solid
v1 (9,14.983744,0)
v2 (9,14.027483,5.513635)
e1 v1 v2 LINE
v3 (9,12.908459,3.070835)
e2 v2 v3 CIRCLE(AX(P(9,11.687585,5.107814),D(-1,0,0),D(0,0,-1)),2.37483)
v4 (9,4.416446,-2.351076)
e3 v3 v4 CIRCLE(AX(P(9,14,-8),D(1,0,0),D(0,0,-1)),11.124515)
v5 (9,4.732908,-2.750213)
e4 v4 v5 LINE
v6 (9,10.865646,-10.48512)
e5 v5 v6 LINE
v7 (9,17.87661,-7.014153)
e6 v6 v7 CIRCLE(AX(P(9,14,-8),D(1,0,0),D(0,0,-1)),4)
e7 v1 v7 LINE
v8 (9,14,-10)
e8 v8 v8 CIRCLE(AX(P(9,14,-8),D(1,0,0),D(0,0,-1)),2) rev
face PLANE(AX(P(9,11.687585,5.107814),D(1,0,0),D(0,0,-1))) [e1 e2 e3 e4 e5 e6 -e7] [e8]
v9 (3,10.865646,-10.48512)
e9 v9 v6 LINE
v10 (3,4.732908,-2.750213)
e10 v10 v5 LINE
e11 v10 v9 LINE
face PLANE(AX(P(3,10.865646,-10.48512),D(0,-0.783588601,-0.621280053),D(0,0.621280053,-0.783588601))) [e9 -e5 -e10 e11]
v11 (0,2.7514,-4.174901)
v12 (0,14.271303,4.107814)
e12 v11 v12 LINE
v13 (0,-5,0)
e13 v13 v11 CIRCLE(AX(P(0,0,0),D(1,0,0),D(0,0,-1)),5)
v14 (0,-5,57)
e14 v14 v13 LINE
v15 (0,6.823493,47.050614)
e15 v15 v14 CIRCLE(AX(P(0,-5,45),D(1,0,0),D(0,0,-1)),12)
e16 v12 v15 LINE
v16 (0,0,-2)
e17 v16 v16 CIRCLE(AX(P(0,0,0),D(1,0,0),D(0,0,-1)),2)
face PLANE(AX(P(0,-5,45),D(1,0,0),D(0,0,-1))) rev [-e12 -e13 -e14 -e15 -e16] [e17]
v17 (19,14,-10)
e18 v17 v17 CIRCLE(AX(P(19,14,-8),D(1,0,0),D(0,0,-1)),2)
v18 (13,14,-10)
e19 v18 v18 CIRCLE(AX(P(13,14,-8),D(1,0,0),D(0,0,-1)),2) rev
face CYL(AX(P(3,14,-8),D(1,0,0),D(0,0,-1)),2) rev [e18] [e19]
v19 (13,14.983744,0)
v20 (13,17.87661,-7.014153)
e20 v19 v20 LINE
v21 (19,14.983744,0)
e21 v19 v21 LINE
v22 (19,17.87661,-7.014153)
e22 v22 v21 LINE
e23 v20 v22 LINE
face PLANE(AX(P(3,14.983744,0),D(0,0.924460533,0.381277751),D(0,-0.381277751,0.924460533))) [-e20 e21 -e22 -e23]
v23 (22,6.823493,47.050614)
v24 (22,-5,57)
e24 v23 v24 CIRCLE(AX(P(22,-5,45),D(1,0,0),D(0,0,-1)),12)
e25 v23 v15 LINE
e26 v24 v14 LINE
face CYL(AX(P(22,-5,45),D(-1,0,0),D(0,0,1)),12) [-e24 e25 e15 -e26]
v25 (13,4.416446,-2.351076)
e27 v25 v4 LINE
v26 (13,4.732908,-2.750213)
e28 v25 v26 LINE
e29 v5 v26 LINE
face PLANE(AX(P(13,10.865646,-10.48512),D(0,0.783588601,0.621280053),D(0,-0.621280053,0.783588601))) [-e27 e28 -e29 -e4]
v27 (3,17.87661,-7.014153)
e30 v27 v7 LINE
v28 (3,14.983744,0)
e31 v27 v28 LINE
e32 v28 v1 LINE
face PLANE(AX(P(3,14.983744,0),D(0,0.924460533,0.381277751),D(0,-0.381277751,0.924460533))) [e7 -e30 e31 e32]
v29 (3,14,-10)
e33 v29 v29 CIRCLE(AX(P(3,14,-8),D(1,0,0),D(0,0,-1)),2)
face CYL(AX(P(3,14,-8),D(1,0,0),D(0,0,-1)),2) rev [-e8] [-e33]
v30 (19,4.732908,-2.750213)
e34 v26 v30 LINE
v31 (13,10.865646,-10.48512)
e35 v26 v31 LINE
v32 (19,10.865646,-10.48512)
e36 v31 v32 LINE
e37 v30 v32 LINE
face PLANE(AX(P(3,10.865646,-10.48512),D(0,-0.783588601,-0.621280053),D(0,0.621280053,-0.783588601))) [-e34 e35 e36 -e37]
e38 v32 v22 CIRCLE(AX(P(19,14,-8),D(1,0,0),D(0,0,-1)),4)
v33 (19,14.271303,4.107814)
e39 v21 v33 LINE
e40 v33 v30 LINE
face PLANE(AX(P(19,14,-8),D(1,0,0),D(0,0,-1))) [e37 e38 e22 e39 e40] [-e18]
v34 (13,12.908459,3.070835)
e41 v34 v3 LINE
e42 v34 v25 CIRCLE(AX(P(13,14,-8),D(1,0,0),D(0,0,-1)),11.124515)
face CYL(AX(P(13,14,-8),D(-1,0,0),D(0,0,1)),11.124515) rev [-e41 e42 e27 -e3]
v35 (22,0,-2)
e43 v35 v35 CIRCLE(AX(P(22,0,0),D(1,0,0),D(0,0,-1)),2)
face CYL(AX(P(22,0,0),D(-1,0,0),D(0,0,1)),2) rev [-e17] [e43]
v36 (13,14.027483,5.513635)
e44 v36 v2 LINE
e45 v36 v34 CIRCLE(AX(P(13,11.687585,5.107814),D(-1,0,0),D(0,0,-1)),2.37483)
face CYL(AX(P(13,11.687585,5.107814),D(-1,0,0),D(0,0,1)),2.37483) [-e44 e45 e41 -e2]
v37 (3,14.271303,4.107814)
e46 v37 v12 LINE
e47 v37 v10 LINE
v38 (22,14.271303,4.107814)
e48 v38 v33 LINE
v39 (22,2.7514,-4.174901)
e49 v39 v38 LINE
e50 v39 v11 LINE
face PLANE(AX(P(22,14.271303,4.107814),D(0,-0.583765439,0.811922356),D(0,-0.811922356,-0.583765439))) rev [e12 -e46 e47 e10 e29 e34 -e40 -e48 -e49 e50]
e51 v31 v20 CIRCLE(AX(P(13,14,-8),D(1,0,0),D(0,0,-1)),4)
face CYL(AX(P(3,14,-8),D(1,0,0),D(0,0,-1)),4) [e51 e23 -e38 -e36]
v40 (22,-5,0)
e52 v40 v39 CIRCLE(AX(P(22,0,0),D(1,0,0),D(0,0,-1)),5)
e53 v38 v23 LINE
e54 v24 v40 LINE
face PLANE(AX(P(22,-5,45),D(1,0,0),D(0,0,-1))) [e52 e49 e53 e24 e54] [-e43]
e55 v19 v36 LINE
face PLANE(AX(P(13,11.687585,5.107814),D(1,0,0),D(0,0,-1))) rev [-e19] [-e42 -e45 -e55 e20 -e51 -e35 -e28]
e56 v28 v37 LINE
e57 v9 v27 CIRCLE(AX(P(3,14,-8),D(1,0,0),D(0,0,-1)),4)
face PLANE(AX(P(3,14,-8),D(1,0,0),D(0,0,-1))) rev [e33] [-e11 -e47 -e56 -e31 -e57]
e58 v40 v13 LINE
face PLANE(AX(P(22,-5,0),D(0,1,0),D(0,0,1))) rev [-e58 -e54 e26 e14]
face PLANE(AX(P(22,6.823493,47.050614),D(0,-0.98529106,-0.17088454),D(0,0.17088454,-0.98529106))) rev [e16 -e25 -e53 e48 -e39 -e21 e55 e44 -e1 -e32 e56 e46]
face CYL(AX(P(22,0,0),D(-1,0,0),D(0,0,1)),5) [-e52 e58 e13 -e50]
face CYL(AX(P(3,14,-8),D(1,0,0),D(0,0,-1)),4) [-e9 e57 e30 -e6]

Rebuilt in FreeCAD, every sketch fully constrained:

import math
import FreeCAD as App
import Part
import Sketcher

doc = App.newDocument("Part")
body = doc.addObject("PartDesign::Body", "Body")

# Sketch on YZ plane
sketch1 = doc.addObject("Sketcher::SketchObject", "Sketch")
body.addObject(sketch1)
sketch1.AttachmentSupport = (doc.YZ_Plane, [""])
sketch1.MapMode = "FlatFace"
sketch1.addGeometry([
    Part.LineSegment(App.Vector(3.08, -3.94, 0), App.Vector(14.27, 4.11, 0)),  # 0
    Part.LineSegment(App.Vector(14.27, 4.11, 0), App.Vector(6.82, 47.05, 0)),  # 1
    Part.ArcOfCircle(Part.Circle(App.Vector(-5, 45, 0), App.Vector(0, 0, 1), 12), math.radians(10), math.radians(90)),  # 2
    Part.LineSegment(App.Vector(-5, 57, 0), App.Vector(-5, 0, 0)),  # 3
    Part.ArcOfCircle(Part.Circle(App.Vector(0, 0, 0), App.Vector(0, 0, 1), 5), math.radians(180), math.radians(303)),  # 4
    Part.LineSegment(App.Vector(2.75, -4.17, 0), App.Vector(3.08, -3.94, 0)),  # 5
    Part.Circle(App.Vector(0, 0, 0), App.Vector(0, 0, 1), 2),  # 6
], False)
sketch1.addConstraint([
    Sketcher.Constraint("Coincident", 0, 2, 1, 1),
    Sketcher.Constraint("Tangent", 1, 2, 2, 1),
    Sketcher.Constraint("Coincident", 2, 2, 3, 1),
    Sketcher.Constraint("Tangent", 3, 2, 4, 1),
    Sketcher.Constraint("Coincident", 4, 2, 5, 1),
    Sketcher.Constraint("Coincident", 5, 2, 0, 1),
    Sketcher.Constraint("Vertical", 3),
    Sketcher.Constraint("Coincident", 4, 3, -1, 1),
    Sketcher.Constraint("Coincident", 6, 3, -1, 1),
    Sketcher.Constraint("Parallel", 0, 5),
    Sketcher.Constraint("Diameter", 6, 4.0),
    Sketcher.Constraint("Radius", 2, 12.0),
    Sketcher.Constraint("Radius", 4, 5.0),
    Sketcher.Constraint("DistanceY", 3, 2, 3, 1, 57.0),
    Sketcher.Constraint("DistanceX", 2, 3, -1, 1, 5.0),
    Sketcher.Constraint("DistanceX", -1, 1, 4, 2, 2.7514),
    Sketcher.Constraint("DistanceY", 0, 2, 1, 2, 42.942801),
    Sketcher.Constraint("Distance", 0, 13.78195),
    Sketcher.Constraint("Distance", 5, 0.406479),
])
pad1 = doc.addObject("PartDesign::Pad", "Pad")
body.addObject(pad1)
pad1.Profile = sketch1
pad1.Length = 22

# Sketch on YZ plane
sketch2 = doc.addObject("Sketcher::SketchObject", "Sketch001")
body.addObject(sketch2)
sketch2.AttachmentSupport = (doc.YZ_Plane, [""])
sketch2.MapMode = "FlatFace"
sketch2.AttachmentOffset = App.Placement(App.Vector(0, 0, 11), App.Rotation())
sketch2.addGeometry([
    Part.LineSegment(App.Vector(15, 0, 0), App.Vector(14.3, 4.1, 0)),  # 0
    Part.LineSegment(App.Vector(14.3, 4.1, 0), App.Vector(4.7, -2.8, 0)),  # 1
    Part.LineSegment(App.Vector(4.7, -2.8, 0), App.Vector(10.9, -10.5, 0)),  # 2
    Part.ArcOfCircle(Part.Circle(App.Vector(14, -8, 0), App.Vector(0, 0, 1), 4), math.radians(-142), math.radians(14)),  # 3
    Part.LineSegment(App.Vector(17.9, -7, 0), App.Vector(15, 0, 0)),  # 4
    Part.Circle(App.Vector(14, -8, 0), App.Vector(0, 0, 1), 2),  # 5
], False)
sketch2.addConstraint([
    Sketcher.Constraint("Coincident", 0, 2, 1, 1),
    Sketcher.Constraint("Coincident", 1, 2, 2, 1),
    Sketcher.Constraint("Tangent", 2, 2, 3, 1),
    Sketcher.Constraint("Coincident", 3, 2, 4, 1),
    Sketcher.Constraint("Coincident", 4, 2, 0, 1),
    Sketcher.Constraint("Coincident", 5, 3, 3, 3),
    Sketcher.Constraint("PointOnObject", 4, 2, -1),
    Sketcher.Constraint("Diameter", 5, 4.0),
    Sketcher.Constraint("Radius", 3, 4.0),
    Sketcher.Constraint("DistanceX", -1, 1, 3, 3, 14.0),
    Sketcher.Constraint("DistanceY", 3, 3, -1, 1, 8.0),
    Sketcher.Constraint("DistanceY", 2, 2, -1, 1, 10.48512),
    Sketcher.Constraint("DistanceX", -1, 1, 3, 2, 17.87661),
    Sketcher.Constraint("DistanceY", 3, 2, 1, 2, 4.26394),
    Sketcher.Constraint("DistanceX", 0, 2, 4, 2, 0.712441),
    Sketcher.Constraint("Distance", 0, 4.169137),
    Sketcher.Constraint("Distance", 1, 11.747915),
])
pad2 = doc.addObject("PartDesign::Pad", "Pad001")
body.addObject(pad2)
pad2.Profile = sketch2
pad2.Type = "TwoLengths"
pad2.Length = 8
pad2.Length2 = 8

# Sketch on YZ plane
sketch3 = doc.addObject("Sketcher::SketchObject", "Sketch002")
body.addObject(sketch3)
sketch3.AttachmentSupport = (doc.YZ_Plane, [""])
sketch3.MapMode = "FlatFace"
sketch3.AttachmentOffset = App.Placement(App.Vector(0, 0, 11), App.Rotation())
sketch3.addGeometry([
    Part.LineSegment(App.Vector(14.4, 3.1, 0), App.Vector(14, 5.5, 0)),  # 0
    Part.ArcOfCircle(Part.Circle(App.Vector(11.7, 5.1, 0), App.Vector(0, 0, 1), 2.4), math.radians(-59), math.radians(10)),  # 1
    Part.ArcOfCircle(Part.Circle(App.Vector(14, -8, 0), App.Vector(0, 0, 1), 11.1), math.radians(96), math.radians(149)),  # 2
    Part.LineSegment(App.Vector(4.4, -2.4, 0), App.Vector(10.9, -10.5, 0)),  # 3
    Part.ArcOfCircle(Part.Circle(App.Vector(14, -8, 0), App.Vector(0, 0, 1), 4), math.radians(-142), math.radians(31)),  # 4
    Part.LineSegment(App.Vector(17.4, -6, 0), App.Vector(15, 0, 0)),  # 5
    Part.LineSegment(App.Vector(15, 0, 0), App.Vector(14.4, 3.1, 0)),  # 6
], False)
sketch3.addConstraint([
    Sketcher.Constraint("Tangent", 0, 2, 1, 2),
    Sketcher.Constraint("Coincident", 1, 1, 2, 1),
    Sketcher.Constraint("Coincident", 2, 2, 3, 1),
    Sketcher.Constraint("Tangent", 3, 2, 4, 1),
    Sketcher.Constraint("Coincident", 4, 2, 5, 1),
    Sketcher.Constraint("Coincident", 5, 2, 6, 1),
    Sketcher.Constraint("Coincident", 6, 2, 0, 1),
    Sketcher.Constraint("Coincident", 4, 3, 2, 3),
    Sketcher.Constraint("PointOnObject", 5, 2, -1),
    Sketcher.Constraint("Parallel", 0, 6),
    Sketcher.Constraint("Radius", 4, 4.0),
    Sketcher.Constraint("DistanceX", -1, 1, 2, 3, 14.0),
    Sketcher.Constraint("DistanceY", 2, 3, -1, 1, 8.0),
    Sketcher.Constraint("Radius", 1, 2.37483),
    Sketcher.Constraint("Radius", 2, 11.124515),
    Sketcher.Constraint("DistanceX", 1, 3, 0, 2, 2.339899),
    Sketcher.Constraint("DistanceY", 1, 1, 0, 2, 2.442801),
    Sketcher.Constraint("DistanceX", 2, 2, 3, 2, 6.4492),
    Sketcher.Constraint("Distance", 6, 3.162189),
    Sketcher.Constraint("DistanceX", -1, 1, 1, 1, 12.908459),
    Sketcher.Constraint("DistanceX", -1, 1, 4, 2, 17.444479),
])
pocket1 = doc.addObject("PartDesign::Pocket", "Pocket")
body.addObject(pocket1)
pocket1.Profile = sketch3
pocket1.Type = "TwoLengths"
pocket1.Length = 2
pocket1.Length2 = 2
pocket1.Reversed = True

doc.recompute()
